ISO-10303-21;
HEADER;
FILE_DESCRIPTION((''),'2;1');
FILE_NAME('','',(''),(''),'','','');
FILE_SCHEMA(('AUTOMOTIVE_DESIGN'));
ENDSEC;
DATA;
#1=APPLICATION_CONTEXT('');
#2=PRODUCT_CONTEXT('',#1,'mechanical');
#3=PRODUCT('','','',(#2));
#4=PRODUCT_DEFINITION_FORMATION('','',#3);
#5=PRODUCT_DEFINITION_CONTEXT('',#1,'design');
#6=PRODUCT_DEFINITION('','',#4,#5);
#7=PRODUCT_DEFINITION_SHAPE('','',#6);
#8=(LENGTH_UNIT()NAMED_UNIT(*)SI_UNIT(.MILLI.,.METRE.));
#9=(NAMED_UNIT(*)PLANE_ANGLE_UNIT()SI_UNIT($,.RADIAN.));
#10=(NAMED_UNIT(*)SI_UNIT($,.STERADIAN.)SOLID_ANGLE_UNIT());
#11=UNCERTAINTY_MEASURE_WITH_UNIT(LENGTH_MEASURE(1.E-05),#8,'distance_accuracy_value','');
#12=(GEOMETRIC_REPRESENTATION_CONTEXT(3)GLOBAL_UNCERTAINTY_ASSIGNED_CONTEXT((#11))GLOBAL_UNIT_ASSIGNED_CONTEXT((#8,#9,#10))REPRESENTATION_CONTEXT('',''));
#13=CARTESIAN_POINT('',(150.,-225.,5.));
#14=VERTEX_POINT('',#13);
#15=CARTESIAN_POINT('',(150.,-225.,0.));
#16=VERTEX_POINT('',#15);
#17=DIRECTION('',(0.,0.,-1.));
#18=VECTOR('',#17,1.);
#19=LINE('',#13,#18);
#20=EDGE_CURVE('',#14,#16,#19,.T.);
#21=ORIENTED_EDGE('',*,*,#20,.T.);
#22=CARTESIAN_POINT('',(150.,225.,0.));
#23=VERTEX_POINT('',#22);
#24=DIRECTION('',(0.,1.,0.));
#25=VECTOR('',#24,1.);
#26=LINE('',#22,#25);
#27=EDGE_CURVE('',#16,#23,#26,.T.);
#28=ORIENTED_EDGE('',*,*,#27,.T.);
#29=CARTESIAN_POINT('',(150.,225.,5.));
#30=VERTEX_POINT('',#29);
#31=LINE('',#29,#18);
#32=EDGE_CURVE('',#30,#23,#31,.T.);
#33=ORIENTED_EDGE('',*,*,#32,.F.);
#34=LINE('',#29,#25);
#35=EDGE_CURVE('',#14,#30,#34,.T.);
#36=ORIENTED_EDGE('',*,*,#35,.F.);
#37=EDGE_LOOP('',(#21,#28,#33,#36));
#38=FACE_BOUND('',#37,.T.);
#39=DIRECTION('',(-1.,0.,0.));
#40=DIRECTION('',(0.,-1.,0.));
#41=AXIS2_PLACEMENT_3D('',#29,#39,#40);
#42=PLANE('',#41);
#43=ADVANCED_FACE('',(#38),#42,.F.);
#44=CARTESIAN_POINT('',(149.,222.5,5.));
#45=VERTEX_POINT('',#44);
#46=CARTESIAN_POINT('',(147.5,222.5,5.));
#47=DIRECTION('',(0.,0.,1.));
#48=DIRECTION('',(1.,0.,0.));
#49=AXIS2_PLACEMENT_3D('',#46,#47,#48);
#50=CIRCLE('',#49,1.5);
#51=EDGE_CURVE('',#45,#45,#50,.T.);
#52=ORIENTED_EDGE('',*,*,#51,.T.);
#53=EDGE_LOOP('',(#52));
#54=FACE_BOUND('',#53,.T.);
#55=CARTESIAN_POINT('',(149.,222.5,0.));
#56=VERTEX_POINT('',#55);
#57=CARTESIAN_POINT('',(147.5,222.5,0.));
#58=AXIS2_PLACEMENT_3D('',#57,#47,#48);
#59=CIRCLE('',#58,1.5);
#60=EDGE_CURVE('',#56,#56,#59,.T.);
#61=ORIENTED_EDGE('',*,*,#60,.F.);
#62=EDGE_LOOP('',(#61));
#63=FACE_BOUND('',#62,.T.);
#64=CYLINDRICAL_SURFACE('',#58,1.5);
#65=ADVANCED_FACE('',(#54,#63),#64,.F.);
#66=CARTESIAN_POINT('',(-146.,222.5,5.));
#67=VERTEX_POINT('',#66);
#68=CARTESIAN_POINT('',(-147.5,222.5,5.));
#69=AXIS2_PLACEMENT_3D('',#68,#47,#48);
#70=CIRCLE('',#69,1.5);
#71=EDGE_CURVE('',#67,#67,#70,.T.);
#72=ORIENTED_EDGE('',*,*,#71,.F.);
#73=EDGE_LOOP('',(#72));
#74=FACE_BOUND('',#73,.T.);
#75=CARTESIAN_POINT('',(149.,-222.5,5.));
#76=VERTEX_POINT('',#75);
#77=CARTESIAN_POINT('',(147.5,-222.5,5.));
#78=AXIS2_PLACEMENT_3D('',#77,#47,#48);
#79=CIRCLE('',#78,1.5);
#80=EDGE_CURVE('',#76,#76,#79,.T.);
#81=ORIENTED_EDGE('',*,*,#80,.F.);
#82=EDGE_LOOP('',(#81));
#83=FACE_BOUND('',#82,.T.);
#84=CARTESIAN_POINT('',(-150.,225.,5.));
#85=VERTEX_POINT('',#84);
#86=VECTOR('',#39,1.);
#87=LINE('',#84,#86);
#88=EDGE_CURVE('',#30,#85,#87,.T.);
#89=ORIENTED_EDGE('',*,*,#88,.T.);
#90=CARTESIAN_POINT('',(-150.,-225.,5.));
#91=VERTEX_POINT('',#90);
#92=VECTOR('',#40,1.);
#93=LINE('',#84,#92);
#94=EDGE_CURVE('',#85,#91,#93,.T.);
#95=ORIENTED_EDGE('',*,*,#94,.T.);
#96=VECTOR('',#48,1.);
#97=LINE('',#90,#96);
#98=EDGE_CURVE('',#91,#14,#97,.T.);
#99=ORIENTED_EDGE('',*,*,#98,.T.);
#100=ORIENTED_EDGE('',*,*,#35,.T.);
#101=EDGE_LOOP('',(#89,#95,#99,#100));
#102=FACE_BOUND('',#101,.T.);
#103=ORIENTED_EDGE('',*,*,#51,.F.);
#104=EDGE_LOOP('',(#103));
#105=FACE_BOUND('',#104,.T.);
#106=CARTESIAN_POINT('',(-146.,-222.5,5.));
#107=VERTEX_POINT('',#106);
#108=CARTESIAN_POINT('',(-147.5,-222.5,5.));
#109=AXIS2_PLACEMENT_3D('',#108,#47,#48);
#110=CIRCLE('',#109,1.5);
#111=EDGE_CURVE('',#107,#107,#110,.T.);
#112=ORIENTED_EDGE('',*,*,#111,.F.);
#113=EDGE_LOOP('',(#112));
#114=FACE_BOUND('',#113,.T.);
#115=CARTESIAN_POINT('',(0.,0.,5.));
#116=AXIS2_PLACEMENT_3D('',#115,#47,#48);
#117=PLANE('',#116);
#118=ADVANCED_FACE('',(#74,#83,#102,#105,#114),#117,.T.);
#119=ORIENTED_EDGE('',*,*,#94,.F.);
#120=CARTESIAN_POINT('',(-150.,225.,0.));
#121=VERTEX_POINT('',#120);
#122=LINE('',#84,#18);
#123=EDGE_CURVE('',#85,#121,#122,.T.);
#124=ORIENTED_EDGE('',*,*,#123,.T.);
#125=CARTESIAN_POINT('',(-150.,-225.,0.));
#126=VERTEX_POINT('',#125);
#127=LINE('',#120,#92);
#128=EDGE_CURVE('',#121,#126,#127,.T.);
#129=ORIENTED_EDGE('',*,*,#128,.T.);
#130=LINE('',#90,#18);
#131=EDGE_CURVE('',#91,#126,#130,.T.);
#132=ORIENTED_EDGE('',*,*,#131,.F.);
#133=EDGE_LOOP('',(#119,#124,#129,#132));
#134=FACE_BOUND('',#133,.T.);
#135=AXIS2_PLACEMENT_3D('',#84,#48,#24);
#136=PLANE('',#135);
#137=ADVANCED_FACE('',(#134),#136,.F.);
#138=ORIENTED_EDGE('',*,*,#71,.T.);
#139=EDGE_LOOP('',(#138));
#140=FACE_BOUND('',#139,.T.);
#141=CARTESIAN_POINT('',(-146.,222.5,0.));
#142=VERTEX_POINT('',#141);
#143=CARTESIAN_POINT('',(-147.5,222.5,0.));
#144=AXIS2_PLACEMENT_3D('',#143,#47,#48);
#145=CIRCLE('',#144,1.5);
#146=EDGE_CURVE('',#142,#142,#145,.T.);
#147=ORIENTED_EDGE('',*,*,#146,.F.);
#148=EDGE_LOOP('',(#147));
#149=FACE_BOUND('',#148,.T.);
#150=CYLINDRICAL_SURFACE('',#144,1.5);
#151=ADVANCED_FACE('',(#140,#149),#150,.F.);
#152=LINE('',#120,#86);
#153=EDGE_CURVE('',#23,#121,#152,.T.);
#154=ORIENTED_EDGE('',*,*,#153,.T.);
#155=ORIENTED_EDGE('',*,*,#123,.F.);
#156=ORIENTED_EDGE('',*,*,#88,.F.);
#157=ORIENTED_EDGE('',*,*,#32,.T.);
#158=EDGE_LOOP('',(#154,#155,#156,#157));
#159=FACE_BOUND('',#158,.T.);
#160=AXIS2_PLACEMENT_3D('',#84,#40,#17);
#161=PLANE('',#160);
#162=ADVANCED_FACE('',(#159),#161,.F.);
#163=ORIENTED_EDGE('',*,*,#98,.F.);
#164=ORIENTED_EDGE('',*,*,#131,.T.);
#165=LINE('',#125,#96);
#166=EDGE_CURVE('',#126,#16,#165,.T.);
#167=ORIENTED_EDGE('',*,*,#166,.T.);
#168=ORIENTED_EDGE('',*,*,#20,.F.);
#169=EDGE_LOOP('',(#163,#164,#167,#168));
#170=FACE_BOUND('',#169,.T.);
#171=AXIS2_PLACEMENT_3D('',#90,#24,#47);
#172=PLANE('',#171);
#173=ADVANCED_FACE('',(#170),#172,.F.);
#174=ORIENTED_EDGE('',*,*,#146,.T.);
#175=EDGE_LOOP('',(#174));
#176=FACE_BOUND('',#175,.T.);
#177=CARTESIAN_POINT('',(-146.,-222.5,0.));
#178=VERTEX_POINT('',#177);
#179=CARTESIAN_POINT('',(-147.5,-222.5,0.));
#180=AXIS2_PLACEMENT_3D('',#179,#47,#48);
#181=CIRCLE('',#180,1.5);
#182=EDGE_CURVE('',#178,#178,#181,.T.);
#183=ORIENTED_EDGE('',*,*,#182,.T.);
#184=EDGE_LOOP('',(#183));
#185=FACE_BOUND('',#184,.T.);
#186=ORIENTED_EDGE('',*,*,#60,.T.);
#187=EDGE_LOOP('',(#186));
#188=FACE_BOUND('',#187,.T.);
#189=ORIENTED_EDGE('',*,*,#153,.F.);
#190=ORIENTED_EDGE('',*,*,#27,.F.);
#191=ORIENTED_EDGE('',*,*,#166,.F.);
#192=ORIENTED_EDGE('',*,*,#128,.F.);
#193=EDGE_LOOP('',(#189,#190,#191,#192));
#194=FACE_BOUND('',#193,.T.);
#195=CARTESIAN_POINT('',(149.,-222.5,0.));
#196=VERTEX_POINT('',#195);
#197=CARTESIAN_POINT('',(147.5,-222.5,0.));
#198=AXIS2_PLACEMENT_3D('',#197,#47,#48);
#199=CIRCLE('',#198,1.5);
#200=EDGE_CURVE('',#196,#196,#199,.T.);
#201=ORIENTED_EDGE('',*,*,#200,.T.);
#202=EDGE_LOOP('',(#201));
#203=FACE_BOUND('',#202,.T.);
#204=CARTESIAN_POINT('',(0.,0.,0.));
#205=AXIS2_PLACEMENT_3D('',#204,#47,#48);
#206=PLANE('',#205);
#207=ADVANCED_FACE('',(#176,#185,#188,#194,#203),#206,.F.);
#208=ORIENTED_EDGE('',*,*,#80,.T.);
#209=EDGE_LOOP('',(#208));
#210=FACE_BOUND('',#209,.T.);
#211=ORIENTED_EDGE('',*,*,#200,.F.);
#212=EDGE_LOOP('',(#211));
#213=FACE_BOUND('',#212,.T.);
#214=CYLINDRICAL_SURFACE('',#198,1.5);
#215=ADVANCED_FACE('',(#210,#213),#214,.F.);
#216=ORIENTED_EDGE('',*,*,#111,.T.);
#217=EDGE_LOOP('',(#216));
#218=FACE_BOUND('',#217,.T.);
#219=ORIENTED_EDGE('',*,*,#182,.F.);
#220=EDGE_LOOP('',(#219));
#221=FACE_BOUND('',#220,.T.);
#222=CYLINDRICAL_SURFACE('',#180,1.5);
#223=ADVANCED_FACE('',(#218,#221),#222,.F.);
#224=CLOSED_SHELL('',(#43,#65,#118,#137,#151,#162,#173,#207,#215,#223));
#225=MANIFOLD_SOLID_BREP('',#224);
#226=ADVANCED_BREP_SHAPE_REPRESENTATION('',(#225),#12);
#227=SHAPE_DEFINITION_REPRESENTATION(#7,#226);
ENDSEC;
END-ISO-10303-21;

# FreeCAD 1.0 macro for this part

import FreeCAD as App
import Part
import Sketcher
from FreeCAD import Vector


def add_polygon(sketch, points):
    """Adds a closed chain of lines whose ends are joined by coincident constraints."""
    first, n = sketch.GeometryCount, len(points)
    for a, b in zip(points, points[1:] + points[:1]):
        sketch.addGeometry(Part.LineSegment(App.Vector(*a, 0), App.Vector(*b, 0)), False)
    for i in range(n):
        sketch.addConstraint(Sketcher.Constraint("Coincident", first + i, 2, first + (i + 1) % n, 1))

doc = App.newDocument("Part")
params = doc.addObject("Spreadsheet::Sheet", "Params")
for row, (alias, value) in enumerate([
    ("sketch1_width", "300 mm"),
    ("sketch1_height", "450 mm"),
    ("pad1_length", "5 mm"),
    ("sketch2_diameter", "3 mm"),
], start=1):
    params.set(f"A{row}", alias)
    params.set(f"B{row}", "=" + value)
    params.setAlias(f"B{row}", alias)

body = doc.addObject("PartDesign::Body", "Body")

# Sketch on XY plane
sketch1 = body.newObject("Sketcher::SketchObject", "Sketch")
sketch1.AttachmentSupport = (doc.getObject("XY_Plane"), [""])
sketch1.MapMode = "FlatFace"
add_polygon(sketch1, [(-150, 225), (-150, -225), (150, -225), (150, 225)])  # lines 0-3
sketch1.addConstraint([
    Sketcher.Constraint("Vertical", 0),
    Sketcher.Constraint("Horizontal", 1),
    Sketcher.Constraint("Vertical", 2),
    Sketcher.Constraint("Horizontal", 3),
    Sketcher.Constraint("Symmetric", 0, 2, 2, 2, -1, 1),
    Sketcher.Constraint("DistanceX", 1, 1, 1, 2, 300.0),
    Sketcher.Constraint("DistanceY", 0, 2, 0, 1, 450.0),
])
sketch1.setExpression("Constraints[9]", "Params.sketch1_width")
sketch1.setExpression("Constraints[10]", "Params.sketch1_height")
pad1 = body.newObject("PartDesign::Pad", "Pad")
pad1.Profile = sketch1
pad1.setExpression("Length", "Params.pad1_length")

# Sketch on XY plane
sketch2 = body.newObject("Sketcher::SketchObject", "Sketch001")
sketch2.AttachmentSupport = (doc.getObject("XY_Plane"), [""])
sketch2.MapMode = "FlatFace"
sketch2.AttachmentOffset = App.Placement(Vector(0, 0, 5), App.Rotation())
sketch2.addGeometry([
    Part.Circle(Vector(-147.5, -222.5, 0), Vector(0, 0, 1), 1.5),
    Part.Circle(Vector(-147.5, 222.5, 0), Vector(0, 0, 1), 1.5),
    Part.Circle(Vector(147.5, -222.5, 0), Vector(0, 0, 1), 1.5),
    Part.Circle(Vector(147.5, 222.5, 0), Vector(0, 0, 1), 1.5),
], False)
sketch2.addConstraint([
    Sketcher.Constraint("Equal", 0, 1),
    Sketcher.Constraint("Equal", 1, 2),
    Sketcher.Constraint("Equal", 2, 3),
    Sketcher.Constraint("Symmetric", 1, 3, 2, 3, -1, 1),
    Sketcher.Constraint("Symmetric", 0, 3, 3, 3, -1, 1),
    Sketcher.Constraint("Symmetric", 0, 3, 2, 3, -2),
    Sketcher.Constraint("Diameter", 0, 3.0),
    Sketcher.Constraint("DistanceY", 0, 3, 1, 3, 445.0),
    Sketcher.Constraint("DistanceX", 0, 3, 2, 3, 295.0),
])
sketch2.setExpression("Constraints[6]", "Params.sketch2_diameter")
pocket1 = body.newObject("PartDesign::Pocket", "Pocket")
pocket1.Profile = sketch2
pocket1.Type = "ThroughAll"

doc.recompute()
